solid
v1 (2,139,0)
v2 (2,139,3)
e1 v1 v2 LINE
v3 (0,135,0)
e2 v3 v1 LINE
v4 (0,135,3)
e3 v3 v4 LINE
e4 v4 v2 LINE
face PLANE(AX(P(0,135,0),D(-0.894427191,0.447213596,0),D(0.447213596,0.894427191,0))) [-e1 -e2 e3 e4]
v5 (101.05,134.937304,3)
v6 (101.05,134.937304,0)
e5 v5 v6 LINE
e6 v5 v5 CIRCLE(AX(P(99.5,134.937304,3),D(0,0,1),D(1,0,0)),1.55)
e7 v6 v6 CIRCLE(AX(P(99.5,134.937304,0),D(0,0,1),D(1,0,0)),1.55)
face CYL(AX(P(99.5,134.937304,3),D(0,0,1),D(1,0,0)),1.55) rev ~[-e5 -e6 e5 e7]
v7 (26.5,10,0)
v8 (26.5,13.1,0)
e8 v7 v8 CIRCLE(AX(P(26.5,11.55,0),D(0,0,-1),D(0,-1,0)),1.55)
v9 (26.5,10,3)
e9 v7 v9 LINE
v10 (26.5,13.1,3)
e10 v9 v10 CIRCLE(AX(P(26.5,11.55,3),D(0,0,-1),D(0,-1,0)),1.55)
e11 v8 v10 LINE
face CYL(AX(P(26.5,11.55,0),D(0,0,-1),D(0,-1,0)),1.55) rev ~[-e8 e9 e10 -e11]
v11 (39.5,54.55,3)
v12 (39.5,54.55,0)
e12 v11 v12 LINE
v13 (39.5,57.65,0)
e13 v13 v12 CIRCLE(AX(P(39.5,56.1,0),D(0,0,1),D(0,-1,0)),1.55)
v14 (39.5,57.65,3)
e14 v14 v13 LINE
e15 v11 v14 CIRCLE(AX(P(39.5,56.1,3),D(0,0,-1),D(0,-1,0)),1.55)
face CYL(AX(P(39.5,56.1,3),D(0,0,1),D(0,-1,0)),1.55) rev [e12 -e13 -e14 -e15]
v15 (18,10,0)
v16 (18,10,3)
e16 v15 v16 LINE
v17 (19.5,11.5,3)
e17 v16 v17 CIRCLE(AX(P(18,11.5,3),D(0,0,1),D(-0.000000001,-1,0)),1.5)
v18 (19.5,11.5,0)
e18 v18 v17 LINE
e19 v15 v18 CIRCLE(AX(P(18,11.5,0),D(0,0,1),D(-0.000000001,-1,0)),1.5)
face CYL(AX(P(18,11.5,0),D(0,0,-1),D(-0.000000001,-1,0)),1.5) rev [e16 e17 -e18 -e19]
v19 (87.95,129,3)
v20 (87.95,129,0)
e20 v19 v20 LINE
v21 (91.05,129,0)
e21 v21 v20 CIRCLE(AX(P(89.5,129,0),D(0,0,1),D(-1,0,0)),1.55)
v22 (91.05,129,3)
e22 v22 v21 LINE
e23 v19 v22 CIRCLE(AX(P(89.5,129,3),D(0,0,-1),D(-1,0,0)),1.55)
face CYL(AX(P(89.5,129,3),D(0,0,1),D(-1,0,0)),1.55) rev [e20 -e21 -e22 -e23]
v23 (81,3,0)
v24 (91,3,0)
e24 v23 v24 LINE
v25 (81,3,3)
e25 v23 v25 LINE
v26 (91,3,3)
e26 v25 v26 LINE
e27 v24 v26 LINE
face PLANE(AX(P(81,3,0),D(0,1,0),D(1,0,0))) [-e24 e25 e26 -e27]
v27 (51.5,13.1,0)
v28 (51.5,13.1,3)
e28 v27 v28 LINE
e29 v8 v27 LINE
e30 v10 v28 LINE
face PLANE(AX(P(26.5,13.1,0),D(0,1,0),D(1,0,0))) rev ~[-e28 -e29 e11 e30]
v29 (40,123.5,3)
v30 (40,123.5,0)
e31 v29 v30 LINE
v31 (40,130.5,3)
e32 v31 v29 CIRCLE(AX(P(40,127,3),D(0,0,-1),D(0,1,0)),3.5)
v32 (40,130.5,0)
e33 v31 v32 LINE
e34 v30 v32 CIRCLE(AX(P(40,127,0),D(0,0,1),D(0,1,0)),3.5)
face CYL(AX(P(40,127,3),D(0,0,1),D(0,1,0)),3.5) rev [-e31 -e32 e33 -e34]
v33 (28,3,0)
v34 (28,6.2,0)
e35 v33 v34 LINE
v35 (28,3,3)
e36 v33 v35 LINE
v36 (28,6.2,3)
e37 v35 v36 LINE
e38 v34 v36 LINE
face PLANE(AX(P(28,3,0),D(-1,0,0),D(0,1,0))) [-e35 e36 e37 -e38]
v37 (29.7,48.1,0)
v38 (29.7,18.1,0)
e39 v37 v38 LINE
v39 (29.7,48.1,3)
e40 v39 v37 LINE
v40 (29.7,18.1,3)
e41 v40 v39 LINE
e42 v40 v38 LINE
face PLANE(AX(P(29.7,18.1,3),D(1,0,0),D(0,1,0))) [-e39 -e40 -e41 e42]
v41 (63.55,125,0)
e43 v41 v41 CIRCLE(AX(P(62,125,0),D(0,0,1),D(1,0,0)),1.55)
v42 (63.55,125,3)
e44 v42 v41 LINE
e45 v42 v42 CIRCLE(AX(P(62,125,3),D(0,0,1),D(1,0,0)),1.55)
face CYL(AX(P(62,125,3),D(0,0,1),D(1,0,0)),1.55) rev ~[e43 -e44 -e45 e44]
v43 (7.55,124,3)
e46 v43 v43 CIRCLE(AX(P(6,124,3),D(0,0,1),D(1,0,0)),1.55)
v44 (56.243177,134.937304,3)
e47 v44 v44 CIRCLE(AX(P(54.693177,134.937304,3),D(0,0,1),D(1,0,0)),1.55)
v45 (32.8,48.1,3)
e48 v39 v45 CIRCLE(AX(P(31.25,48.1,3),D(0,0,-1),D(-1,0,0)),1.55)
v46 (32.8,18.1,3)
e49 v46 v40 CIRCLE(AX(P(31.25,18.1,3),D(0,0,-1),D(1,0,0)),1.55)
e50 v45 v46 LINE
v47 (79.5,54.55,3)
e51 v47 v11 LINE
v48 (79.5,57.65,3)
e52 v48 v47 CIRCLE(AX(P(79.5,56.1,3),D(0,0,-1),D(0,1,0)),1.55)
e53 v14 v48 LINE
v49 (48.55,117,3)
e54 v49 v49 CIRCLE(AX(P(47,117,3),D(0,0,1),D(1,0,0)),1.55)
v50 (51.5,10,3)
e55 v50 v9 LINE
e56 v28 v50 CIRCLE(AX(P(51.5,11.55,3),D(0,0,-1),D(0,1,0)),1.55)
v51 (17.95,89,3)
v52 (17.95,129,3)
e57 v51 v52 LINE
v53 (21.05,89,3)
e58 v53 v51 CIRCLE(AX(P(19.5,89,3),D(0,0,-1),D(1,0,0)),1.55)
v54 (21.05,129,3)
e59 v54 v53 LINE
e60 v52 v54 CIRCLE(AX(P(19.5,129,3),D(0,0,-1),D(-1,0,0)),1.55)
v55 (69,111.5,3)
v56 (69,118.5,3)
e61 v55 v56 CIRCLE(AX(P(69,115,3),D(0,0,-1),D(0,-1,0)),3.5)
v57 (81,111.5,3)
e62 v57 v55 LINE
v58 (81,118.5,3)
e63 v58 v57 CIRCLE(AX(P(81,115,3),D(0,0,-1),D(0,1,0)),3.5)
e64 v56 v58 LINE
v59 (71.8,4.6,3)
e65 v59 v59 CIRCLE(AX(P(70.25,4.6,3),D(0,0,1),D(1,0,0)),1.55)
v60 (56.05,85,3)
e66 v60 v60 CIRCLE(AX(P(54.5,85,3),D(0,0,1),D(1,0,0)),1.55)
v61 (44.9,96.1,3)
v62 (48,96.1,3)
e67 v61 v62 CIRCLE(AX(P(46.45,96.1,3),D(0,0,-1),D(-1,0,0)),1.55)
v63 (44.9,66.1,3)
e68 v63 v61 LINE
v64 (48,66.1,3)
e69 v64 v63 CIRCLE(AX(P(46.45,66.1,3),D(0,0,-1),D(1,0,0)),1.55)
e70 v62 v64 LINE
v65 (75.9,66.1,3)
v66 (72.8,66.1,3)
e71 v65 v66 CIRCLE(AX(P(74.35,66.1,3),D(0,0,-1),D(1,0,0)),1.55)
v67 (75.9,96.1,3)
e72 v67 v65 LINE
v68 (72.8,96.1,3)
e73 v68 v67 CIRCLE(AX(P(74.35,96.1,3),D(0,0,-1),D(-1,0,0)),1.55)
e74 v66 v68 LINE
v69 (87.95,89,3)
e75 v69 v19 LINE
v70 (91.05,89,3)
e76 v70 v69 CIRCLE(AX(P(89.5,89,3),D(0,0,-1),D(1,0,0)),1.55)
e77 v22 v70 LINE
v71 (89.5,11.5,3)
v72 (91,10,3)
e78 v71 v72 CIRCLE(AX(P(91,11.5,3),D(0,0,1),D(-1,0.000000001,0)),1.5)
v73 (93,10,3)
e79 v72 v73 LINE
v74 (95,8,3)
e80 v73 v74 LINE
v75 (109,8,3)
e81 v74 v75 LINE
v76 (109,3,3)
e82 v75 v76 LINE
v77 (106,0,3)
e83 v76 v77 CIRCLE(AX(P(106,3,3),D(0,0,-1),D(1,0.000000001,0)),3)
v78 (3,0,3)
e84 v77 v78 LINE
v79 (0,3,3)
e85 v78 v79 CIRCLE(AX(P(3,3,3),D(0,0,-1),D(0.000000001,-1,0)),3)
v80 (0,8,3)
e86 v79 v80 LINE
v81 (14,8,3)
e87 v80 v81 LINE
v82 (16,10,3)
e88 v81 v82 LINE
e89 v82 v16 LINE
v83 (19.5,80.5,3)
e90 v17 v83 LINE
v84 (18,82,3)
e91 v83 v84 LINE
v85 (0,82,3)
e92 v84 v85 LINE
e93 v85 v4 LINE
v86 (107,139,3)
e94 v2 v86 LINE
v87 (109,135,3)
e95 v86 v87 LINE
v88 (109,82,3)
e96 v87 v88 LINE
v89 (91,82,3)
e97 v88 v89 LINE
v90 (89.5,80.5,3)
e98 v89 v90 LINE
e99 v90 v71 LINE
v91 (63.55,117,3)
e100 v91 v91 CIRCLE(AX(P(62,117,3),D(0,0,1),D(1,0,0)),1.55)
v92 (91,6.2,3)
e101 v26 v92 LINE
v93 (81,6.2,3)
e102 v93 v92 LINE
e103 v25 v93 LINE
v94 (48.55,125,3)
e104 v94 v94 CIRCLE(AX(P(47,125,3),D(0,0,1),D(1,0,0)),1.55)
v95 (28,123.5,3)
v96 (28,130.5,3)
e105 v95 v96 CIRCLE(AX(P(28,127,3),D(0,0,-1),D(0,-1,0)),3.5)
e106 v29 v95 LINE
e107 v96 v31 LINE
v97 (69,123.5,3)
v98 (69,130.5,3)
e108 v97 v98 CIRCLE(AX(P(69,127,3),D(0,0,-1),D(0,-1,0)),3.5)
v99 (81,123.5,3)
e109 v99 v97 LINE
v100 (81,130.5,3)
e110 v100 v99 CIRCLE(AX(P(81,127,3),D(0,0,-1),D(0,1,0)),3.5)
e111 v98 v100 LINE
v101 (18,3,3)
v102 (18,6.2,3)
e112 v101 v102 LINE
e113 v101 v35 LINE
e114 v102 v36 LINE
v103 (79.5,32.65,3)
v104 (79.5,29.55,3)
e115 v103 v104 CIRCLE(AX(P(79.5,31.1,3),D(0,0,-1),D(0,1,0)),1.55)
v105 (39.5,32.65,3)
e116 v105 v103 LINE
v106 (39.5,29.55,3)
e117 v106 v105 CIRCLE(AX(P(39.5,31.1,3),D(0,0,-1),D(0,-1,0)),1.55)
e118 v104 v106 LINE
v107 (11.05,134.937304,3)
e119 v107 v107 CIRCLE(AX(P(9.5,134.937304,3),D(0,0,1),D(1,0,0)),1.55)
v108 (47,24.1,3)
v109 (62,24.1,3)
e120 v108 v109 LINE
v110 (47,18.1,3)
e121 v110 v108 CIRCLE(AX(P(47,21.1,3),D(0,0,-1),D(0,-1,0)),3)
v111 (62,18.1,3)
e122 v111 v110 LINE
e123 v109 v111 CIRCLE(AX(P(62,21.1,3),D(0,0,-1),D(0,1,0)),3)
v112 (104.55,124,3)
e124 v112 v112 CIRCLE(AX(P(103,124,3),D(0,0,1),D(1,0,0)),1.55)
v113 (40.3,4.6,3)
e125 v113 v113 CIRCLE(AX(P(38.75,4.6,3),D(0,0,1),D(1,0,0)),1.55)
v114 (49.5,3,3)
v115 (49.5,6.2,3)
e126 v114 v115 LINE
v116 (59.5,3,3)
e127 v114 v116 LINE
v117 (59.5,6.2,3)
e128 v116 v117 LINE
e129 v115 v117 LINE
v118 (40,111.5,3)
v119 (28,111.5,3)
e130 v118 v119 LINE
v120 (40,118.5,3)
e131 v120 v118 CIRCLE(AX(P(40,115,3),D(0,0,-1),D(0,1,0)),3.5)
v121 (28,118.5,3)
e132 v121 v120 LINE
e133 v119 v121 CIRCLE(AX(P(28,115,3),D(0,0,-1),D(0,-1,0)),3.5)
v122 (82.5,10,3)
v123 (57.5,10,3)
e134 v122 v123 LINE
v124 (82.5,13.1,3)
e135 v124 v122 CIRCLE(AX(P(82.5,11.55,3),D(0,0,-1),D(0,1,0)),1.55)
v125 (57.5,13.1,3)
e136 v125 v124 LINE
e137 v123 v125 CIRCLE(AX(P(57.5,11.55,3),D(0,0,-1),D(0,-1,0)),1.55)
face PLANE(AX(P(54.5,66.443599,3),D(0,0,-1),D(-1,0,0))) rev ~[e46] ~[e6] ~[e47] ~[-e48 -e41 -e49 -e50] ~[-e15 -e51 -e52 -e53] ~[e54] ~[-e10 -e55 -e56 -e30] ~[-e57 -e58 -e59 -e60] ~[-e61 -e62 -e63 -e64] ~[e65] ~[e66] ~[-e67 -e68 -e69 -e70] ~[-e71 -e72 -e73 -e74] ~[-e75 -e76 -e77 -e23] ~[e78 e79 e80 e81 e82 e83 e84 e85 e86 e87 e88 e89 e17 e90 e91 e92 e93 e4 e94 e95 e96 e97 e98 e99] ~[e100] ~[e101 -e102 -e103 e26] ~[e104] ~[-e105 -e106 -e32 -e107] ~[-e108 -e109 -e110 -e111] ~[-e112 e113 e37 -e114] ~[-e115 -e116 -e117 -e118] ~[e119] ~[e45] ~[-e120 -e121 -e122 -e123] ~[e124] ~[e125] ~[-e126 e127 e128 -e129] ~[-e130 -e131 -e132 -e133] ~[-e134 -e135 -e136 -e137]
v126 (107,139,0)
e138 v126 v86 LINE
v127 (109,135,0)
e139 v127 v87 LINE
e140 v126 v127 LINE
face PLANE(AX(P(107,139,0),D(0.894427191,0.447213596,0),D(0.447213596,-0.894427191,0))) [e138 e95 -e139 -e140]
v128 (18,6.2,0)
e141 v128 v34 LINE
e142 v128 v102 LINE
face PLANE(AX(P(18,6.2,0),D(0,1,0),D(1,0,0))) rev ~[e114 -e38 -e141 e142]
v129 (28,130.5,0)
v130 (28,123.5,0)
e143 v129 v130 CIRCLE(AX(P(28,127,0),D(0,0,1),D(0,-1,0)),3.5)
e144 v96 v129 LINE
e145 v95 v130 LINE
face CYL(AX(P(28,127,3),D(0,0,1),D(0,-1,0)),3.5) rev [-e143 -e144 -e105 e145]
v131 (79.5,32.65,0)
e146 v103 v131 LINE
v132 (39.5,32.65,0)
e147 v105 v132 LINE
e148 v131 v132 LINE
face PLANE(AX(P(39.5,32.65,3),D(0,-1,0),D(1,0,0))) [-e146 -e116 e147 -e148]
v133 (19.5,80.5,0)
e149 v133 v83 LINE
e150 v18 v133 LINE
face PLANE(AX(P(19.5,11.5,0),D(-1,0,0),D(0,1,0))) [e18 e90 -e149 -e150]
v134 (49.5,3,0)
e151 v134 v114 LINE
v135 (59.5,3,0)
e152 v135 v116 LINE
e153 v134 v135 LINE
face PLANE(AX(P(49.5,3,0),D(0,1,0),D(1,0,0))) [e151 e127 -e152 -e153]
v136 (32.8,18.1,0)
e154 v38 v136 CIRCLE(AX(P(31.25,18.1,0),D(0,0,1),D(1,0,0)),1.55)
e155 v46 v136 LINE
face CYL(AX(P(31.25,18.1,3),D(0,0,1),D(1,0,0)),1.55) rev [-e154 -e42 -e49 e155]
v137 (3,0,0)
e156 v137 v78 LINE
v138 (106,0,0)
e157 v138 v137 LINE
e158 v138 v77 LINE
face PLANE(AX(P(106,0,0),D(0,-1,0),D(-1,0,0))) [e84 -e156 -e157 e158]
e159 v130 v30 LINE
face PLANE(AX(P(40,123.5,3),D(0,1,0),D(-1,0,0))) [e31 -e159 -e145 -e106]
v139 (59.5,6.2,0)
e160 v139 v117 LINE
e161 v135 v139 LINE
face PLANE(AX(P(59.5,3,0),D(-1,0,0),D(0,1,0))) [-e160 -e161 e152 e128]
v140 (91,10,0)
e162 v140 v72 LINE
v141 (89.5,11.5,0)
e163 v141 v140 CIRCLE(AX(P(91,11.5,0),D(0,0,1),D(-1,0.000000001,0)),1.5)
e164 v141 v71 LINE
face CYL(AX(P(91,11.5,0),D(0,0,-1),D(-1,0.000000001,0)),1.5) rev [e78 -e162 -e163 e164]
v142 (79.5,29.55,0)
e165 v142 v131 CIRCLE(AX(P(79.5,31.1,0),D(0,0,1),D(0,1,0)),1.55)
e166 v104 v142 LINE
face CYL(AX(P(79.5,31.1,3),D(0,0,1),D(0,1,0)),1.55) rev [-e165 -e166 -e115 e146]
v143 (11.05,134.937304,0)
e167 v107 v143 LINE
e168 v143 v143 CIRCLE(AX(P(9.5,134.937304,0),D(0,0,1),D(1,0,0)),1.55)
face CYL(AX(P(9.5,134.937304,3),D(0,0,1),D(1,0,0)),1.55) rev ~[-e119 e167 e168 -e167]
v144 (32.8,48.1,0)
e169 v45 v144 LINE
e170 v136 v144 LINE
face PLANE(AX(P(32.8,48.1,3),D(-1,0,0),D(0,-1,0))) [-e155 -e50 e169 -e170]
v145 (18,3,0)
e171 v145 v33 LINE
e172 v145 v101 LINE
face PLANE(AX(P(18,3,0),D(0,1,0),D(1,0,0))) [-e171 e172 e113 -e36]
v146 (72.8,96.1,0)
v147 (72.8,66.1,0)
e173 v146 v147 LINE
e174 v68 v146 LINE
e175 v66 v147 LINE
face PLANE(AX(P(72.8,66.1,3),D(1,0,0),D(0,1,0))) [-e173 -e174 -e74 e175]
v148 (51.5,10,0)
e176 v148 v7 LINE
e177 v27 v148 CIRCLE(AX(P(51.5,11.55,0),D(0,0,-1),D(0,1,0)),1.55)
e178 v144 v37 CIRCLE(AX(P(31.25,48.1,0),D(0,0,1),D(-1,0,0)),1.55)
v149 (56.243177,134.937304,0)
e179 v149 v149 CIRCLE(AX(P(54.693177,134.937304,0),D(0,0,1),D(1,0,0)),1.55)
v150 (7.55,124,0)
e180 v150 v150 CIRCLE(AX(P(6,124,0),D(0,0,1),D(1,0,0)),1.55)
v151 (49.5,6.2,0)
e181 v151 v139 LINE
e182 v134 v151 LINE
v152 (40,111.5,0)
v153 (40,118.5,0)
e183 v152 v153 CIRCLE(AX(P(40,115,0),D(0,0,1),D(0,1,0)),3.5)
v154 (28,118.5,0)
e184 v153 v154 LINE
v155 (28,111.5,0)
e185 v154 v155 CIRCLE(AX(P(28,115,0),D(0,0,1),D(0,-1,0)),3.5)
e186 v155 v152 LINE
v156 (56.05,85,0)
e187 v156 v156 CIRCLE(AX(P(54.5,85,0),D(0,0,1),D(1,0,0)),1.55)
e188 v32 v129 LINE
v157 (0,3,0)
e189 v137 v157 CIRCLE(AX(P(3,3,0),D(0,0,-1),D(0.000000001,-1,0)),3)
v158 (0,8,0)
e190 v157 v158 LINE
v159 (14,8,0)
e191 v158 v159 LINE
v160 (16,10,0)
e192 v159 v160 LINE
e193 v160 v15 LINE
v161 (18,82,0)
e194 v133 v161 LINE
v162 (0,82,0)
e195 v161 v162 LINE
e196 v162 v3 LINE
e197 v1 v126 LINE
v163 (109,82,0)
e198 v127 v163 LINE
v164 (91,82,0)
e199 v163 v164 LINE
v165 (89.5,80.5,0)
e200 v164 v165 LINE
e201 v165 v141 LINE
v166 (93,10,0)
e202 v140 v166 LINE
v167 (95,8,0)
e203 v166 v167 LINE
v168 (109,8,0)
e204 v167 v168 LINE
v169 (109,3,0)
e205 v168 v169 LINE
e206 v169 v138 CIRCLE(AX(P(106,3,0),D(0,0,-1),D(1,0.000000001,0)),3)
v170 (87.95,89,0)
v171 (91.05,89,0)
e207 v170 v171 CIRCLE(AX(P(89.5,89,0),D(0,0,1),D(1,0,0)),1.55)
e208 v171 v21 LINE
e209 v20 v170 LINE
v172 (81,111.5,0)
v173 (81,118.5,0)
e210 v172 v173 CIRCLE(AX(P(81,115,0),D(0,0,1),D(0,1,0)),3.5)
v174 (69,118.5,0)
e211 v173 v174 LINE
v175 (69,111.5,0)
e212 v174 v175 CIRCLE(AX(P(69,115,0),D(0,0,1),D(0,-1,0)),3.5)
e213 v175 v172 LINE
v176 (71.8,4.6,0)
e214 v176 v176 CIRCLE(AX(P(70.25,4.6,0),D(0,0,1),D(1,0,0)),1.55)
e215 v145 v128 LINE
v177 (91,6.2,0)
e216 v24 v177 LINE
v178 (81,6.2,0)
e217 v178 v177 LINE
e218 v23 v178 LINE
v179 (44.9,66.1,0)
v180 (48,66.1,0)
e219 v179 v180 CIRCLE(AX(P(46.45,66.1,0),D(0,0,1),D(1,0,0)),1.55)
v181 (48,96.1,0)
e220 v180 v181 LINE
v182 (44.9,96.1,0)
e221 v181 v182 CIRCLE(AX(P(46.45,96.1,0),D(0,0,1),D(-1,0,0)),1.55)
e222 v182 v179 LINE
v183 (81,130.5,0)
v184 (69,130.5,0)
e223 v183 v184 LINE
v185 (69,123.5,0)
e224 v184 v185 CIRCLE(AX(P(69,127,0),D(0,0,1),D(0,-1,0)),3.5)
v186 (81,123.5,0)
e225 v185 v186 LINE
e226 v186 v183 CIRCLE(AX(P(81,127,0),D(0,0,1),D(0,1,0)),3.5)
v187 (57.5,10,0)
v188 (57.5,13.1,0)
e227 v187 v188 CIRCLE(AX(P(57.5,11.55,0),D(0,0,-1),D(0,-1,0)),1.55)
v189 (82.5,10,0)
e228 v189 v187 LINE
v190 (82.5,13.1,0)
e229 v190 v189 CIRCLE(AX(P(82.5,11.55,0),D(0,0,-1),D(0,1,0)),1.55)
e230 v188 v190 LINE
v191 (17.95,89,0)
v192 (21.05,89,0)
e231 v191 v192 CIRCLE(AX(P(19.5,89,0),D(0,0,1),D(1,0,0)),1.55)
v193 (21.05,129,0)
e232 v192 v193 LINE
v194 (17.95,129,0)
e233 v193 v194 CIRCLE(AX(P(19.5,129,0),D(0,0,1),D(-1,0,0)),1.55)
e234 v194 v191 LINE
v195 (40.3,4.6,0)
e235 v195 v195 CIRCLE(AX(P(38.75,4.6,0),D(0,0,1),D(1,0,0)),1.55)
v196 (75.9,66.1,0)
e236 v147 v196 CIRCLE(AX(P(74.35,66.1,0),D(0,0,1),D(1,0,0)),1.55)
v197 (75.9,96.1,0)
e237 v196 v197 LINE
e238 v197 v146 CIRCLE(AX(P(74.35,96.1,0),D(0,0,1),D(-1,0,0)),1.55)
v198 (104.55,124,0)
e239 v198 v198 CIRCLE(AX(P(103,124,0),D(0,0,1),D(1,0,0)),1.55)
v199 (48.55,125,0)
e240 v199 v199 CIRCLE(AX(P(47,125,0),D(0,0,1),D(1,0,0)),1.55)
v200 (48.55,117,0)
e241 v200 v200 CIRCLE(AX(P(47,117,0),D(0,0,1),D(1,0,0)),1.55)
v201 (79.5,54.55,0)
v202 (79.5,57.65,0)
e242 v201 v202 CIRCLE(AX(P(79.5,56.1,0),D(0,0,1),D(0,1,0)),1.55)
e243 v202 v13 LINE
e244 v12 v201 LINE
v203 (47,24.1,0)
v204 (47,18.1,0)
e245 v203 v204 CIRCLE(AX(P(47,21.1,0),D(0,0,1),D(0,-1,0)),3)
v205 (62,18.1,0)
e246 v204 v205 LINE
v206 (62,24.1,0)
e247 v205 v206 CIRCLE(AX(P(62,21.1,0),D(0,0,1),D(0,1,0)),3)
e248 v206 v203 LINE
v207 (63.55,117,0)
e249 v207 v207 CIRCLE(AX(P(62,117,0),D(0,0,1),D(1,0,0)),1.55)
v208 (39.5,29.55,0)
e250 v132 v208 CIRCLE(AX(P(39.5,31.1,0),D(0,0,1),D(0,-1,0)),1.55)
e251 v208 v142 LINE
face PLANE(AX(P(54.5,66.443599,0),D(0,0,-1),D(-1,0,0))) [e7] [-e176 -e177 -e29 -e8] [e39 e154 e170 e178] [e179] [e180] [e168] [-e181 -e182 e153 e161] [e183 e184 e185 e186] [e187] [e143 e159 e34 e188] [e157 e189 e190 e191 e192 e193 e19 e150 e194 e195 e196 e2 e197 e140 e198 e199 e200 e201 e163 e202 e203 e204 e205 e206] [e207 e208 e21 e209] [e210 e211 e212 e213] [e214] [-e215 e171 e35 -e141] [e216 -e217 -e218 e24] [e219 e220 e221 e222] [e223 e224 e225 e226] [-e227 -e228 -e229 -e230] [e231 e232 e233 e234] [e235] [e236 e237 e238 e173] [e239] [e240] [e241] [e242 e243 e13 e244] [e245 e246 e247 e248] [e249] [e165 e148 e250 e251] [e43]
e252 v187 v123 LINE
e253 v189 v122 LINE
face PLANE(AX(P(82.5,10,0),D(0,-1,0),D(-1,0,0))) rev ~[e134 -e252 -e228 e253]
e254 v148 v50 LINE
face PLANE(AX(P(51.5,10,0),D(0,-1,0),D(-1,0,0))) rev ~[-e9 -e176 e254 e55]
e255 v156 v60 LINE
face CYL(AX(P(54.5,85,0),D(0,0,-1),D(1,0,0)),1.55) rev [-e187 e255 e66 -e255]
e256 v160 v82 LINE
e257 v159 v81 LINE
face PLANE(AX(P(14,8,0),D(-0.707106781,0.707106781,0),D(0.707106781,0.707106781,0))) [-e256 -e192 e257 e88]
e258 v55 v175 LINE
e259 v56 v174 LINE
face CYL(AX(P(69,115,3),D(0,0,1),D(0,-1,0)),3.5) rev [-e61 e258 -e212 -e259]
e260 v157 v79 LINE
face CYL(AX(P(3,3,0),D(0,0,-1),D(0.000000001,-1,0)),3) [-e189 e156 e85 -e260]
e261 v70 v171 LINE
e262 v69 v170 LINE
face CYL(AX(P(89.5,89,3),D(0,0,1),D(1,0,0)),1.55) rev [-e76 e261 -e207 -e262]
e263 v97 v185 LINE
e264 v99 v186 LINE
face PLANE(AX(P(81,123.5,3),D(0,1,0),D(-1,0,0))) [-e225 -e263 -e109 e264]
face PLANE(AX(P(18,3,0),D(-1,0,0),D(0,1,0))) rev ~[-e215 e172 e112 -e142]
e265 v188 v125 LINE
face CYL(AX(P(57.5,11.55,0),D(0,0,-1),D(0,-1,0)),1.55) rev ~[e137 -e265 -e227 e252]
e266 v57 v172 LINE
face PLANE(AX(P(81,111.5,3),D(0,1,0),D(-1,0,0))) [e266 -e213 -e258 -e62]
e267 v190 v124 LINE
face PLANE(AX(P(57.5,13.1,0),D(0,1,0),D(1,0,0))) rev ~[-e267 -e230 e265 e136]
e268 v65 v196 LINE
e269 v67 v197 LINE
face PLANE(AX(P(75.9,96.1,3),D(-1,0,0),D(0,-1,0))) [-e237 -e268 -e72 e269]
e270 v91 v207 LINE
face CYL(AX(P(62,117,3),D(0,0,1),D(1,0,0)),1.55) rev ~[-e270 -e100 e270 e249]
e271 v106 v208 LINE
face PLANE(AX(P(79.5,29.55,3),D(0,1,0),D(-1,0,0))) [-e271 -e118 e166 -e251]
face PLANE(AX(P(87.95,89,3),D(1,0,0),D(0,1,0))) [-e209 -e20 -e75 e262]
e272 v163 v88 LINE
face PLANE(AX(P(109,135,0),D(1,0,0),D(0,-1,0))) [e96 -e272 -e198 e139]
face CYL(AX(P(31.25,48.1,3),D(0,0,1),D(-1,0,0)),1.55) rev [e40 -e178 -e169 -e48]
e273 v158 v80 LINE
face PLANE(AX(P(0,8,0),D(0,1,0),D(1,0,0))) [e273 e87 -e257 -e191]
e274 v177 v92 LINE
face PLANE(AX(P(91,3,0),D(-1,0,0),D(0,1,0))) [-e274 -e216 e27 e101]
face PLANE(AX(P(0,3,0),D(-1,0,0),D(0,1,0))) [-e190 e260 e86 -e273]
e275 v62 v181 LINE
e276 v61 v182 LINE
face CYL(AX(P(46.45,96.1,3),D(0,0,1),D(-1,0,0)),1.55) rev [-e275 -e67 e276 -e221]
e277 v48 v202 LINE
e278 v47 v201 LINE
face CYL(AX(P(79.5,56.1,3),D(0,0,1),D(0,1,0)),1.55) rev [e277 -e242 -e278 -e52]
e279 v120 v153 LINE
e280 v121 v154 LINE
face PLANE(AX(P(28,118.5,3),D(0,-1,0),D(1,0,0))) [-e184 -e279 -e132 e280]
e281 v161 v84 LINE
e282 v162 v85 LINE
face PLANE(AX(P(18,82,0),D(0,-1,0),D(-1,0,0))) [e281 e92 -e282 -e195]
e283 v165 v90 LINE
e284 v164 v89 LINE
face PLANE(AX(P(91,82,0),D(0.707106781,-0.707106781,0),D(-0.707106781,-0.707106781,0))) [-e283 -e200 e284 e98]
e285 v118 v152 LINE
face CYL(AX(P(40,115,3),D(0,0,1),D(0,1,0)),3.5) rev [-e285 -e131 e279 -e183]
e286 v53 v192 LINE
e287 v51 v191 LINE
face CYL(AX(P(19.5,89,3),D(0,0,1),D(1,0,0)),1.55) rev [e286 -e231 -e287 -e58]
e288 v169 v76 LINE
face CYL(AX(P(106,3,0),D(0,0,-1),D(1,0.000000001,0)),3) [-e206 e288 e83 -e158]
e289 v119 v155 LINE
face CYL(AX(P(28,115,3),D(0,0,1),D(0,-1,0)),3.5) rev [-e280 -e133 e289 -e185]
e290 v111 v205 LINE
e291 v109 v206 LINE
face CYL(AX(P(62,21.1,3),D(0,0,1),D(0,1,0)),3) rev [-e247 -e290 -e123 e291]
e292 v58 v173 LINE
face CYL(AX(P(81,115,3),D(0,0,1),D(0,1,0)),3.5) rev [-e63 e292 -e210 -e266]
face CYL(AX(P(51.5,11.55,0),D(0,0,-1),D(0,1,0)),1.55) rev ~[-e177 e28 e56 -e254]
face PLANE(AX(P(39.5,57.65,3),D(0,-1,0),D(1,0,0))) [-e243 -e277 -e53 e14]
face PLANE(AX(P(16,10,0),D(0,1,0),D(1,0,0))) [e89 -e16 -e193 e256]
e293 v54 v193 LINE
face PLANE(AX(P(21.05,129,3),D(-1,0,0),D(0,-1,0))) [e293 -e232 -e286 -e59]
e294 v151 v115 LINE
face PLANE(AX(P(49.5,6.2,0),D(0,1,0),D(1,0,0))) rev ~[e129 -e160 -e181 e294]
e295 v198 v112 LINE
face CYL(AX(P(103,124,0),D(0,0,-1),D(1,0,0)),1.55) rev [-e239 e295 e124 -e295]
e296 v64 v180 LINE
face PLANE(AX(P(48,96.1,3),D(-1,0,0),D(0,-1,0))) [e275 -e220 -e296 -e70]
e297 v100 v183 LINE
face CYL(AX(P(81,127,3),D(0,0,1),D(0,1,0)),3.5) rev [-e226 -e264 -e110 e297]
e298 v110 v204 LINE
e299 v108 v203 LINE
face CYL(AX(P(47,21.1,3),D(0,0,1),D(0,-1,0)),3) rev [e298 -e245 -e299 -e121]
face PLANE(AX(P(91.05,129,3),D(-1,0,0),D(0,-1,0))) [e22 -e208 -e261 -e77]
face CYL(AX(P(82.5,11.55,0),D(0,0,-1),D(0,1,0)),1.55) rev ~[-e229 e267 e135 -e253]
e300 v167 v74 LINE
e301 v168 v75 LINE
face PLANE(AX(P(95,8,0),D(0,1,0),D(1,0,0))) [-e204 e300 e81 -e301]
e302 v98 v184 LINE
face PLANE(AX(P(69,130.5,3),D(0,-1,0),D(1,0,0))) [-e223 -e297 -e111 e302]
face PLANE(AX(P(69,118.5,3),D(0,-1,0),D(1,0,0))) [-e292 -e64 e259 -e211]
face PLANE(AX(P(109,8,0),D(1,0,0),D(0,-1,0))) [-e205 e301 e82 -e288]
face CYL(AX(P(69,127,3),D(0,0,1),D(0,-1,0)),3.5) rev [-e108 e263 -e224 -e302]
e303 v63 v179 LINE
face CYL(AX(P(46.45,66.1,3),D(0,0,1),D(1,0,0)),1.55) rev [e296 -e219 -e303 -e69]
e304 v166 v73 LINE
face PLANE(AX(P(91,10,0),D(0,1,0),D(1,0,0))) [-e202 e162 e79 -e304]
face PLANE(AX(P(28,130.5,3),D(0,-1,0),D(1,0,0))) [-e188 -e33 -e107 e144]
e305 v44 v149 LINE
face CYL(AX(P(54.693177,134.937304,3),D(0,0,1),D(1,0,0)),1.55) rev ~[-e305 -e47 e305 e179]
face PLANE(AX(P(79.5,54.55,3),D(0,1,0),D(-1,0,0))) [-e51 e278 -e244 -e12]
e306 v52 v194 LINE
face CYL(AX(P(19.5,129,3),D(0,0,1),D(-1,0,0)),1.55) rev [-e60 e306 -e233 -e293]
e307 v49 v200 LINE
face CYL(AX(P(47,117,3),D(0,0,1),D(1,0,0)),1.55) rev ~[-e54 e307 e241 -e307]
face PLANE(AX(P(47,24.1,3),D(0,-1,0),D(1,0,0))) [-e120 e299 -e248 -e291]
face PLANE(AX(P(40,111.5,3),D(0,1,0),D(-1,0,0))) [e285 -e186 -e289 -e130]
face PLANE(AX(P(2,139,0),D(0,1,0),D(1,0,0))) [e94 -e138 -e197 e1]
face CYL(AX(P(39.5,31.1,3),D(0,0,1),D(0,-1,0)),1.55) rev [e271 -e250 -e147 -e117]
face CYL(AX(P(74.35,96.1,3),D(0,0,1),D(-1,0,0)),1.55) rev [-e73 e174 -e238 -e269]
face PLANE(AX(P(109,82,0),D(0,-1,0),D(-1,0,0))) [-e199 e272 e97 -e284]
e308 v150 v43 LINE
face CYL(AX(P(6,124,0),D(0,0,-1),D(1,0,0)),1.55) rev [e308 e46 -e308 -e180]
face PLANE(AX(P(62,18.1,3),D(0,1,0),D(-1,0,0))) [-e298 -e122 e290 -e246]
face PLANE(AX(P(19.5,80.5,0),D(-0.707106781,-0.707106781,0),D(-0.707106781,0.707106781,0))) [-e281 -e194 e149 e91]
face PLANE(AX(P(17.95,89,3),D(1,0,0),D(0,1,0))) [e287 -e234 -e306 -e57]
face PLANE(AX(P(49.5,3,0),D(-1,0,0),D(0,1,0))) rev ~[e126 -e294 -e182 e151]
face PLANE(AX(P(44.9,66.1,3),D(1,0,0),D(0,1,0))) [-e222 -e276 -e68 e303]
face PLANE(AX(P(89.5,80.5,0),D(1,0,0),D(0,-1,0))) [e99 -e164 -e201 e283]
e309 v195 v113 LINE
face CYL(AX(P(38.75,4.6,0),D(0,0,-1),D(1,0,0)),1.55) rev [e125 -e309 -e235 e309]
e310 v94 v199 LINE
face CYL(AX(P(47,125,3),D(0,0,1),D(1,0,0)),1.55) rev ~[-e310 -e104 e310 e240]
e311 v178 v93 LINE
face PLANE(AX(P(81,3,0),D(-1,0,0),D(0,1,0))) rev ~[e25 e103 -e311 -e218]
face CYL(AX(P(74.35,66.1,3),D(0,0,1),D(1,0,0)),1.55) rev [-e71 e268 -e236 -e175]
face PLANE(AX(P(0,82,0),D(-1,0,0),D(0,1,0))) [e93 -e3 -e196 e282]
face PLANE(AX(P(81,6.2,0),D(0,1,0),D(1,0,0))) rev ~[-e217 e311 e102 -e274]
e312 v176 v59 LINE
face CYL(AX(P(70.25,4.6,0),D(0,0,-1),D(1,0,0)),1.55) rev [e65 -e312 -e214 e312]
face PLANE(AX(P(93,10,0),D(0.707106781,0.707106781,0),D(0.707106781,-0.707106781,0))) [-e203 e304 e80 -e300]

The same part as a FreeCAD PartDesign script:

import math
import FreeCAD as App
import Part
import Sketcher
Q = App.Units.Quantity


def add_polygon(sketch, points):
    """Adds a closed chain of lines whose ends are joined by coincident constraints."""
    first, n = sketch.GeometryCount, len(points)
    for a, b in zip(points, points[1:] + points[:1]):
        sketch.addGeometry(Part.LineSegment(App.Vector(*a, 0), App.Vector(*b, 0)), False)
    for i in range(n):
        sketch.addConstraint(Sketcher.Constraint("Coincident", first + i, 2, first + (i + 1) % n, 1))

doc = App.newDocument("Part")
body = doc.addObject("PartDesign::Body", "Body")

sketch1 = body.newObject("Sketcher::SketchObject", "Sketch")
sketch1.AttachmentSupport = (doc.getObject("XY_Plane"), [""])
sketch1.MapMode = "FlatFace"
sketch1.addGeometry(Part.LineSegment(App.Vector(0, 135, 0), App.Vector(0, 82, 0)), False)
sketch1.addGeometry(Part.LineSegment(App.Vector(0, 82, 0), App.Vector(18, 82, 0)), False)
sketch1.addGeometry(Part.LineSegment(App.Vector(18, 82, 0), App.Vector(19.5, 80.5, 0)), False)
sketch1.addGeometry(Part.LineSegment(App.Vector(19.5, 80.5, 0), App.Vector(19.5, 11.5, 0)), False)
sketch1.addGeometry(Part.ArcOfCircle(Part.Circle(App.Vector(18, 11.5, 0), App.Vector(0, 0, 1), 1.5), math.radians(-90), math.radians(0)), False)
sketch1.addGeometry(Part.LineSegment(App.Vector(18, 10, 0), App.Vector(16, 10, 0)), False)
sketch1.addGeometry(Part.LineSegment(App.Vector(16, 10, 0), App.Vector(14, 8, 0)), False)
sketch1.addGeometry(Part.LineSegment(App.Vector(14, 8, 0), App.Vector(0, 8, 0)), False)
sketch1.addGeometry(Part.LineSegment(App.Vector(0, 8, 0), App.Vector(0, 3, 0)), False)
sketch1.addGeometry(Part.ArcOfCircle(Part.Circle(App.Vector(3, 3, 0), App.Vector(0, 0, 1), 3), math.radians(180), math.radians(270)), False)
sketch1.addGeometry(Part.LineSegment(App.Vector(3, 0, 0), App.Vector(106, 0, 0)), False)
sketch1.addGeometry(Part.ArcOfCircle(Part.Circle(App.Vector(106, 3, 0), App.Vector(0, 0, 1), 3), math.radians(-90), math.radians(0)), False)
sketch1.addGeometry(Part.LineSegment(App.Vector(109, 3, 0), App.Vector(109, 8, 0)), False)
sketch1.addGeometry(Part.LineSegment(App.Vector(109, 8, 0), App.Vector(95, 8, 0)), False)
sketch1.addGeometry(Part.LineSegment(App.Vector(95, 8, 0), App.Vector(93, 10, 0)), False)
sketch1.addGeometry(Part.LineSegment(App.Vector(93, 10, 0), App.Vector(91, 10, 0)), False)
sketch1.addGeometry(Part.ArcOfCircle(Part.Circle(App.Vector(91, 11.5, 0), App.Vector(0, 0, 1), 1.5), math.radians(180), math.radians(270)), False)
sketch1.addGeometry(Part.LineSegment(App.Vector(89.5, 11.5, 0), App.Vector(89.5, 80.5, 0)), False)
sketch1.addGeometry(Part.LineSegment(App.Vector(89.5, 80.5, 0), App.Vector(91, 82, 0)), False)
sketch1.addGeometry(Part.LineSegment(App.Vector(91, 82, 0), App.Vector(109, 82, 0)), False)
sketch1.addGeometry(Part.LineSegment(App.Vector(109, 82, 0), App.Vector(109, 135, 0)), False)
sketch1.addGeometry(Part.LineSegment(App.Vector(109, 135, 0), App.Vector(107, 139, 0)), False)
sketch1.addGeometry(Part.LineSegment(App.Vector(107, 139, 0), App.Vector(2, 139, 0)), False)
sketch1.addGeometry(Part.LineSegment(App.Vector(2, 139, 0), App.Vector(0, 135, 0)), False)
add_polygon(sketch1, [(81, 3), (81, 6.2), (91, 6.2), (91, 3)])
sketch1.addGeometry(Part.Circle(App.Vector(70.2, 4.6, 0), App.Vector(0, 0, 1), 1.6), False)
sketch1.addGeometry(Part.LineSegment(App.Vector(57.5, 13.1, 0), App.Vector(82.5, 13.1, 0)), False)
sketch1.addGeometry(Part.ArcOfCircle(Part.Circle(App.Vector(82.5, 11.6, 0), App.Vector(0, 0, 1), 1.6), math.radians(-90), math.radians(90)), False)
sketch1.addGeometry(Part.LineSegment(App.Vector(82.5, 10, 0), App.Vector(57.5, 10, 0)), False)
sketch1.addGeometry(Part.ArcOfCircle(Part.Circle(App.Vector(57.5, 11.6, 0), App.Vector(0, 0, 1), 1.6), math.radians(90), math.radians(270)), False)
add_polygon(sketch1, [(49.5, 3), (49.5, 6.2), (59.5, 6.2), (59.5, 3)])
sketch1.addGeometry(Part.Circle(App.Vector(38.8, 4.6, 0), App.Vector(0, 0, 1), 1.6), False)
sketch1.addGeometry(Part.LineSegment(App.Vector(26.5, 13.1, 0), App.Vector(51.5, 13.1, 0)), False)
sketch1.addGeometry(Part.ArcOfCircle(Part.Circle(App.Vector(51.5, 11.6, 0), App.Vector(0, 0, 1), 1.6), math.radians(-90), math.radians(90)), False)
sketch1.addGeometry(Part.LineSegment(App.Vector(51.5, 10, 0), App.Vector(26.5, 10, 0)), False)
sketch1.addGeometry(Part.ArcOfCircle(Part.Circle(App.Vector(26.5, 11.6, 0), App.Vector(0, 0, 1), 1.6), math.radians(90), math.radians(270)), False)
add_polygon(sketch1, [(18, 3), (18, 6.2), (28, 6.2), (28, 3)])
sketch1.addGeometry(Part.Circle(App.Vector(54.5, 85, 0), App.Vector(0, 0, 1), 1.6), False)
sketch1.addGeometry(Part.Circle(App.Vector(103, 124, 0), App.Vector(0, 0, 1), 1.6), False)
sketch1.addGeometry(Part.Circle(App.Vector(6, 124, 0), App.Vector(0, 0, 1), 1.6), False)
sketch1.addConstraint([
    Sketcher.Constraint("Coincident", 0, 2, 1, 1),
    Sketcher.Constraint("Coincident", 1, 2, 2, 1),
    Sketcher.Constraint("Coincident", 2, 2, 3, 1),
    Sketcher.Constraint("Tangent", 3, 2, 4, 2),
    Sketcher.Constraint("Tangent", 4, 1, 5, 1),
    Sketcher.Constraint("Coincident", 5, 2, 6, 1),
    Sketcher.Constraint("Coincident", 6, 2, 7, 1),
    Sketcher.Constraint("Coincident", 7, 2, 8, 1),
    Sketcher.Constraint("Tangent", 8, 2, 9, 1),
    Sketcher.Constraint("Tangent", 9, 2, 10, 1),
    Sketcher.Constraint("Tangent", 10, 2, 11, 1),
    Sketcher.Constraint("Tangent", 11, 2, 12, 1),
    Sketcher.Constraint("Coincident", 12, 2, 13, 1),
    Sketcher.Constraint("Coincident", 13, 2, 14, 1),
    Sketcher.Constraint("Coincident", 14, 2, 15, 1),
    Sketcher.Constraint("Tangent", 15, 2, 16, 2),
    Sketcher.Constraint("Tangent", 16, 1, 17, 1),
    Sketcher.Constraint("Coincident", 17, 2, 18, 1),
    Sketcher.Constraint("Coincident", 18, 2, 19, 1),
    Sketcher.Constraint("Coincident", 19, 2, 20, 1),
    Sketcher.Constraint("Coincident", 20, 2, 21, 1),
    Sketcher.Constraint("Coincident", 21, 2, 22, 1),
    Sketcher.Constraint("Coincident", 22, 2, 23, 1),
    Sketcher.Constraint("Coincident", 23, 2, 0, 1),
    Sketcher.Constraint("Tangent", 29, 2, 30, 2),
    Sketcher.Constraint("Tangent", 30, 1, 31, 1),
    Sketcher.Constraint("Tangent", 31, 2, 32, 2),
    Sketcher.Constraint("Tangent", 32, 1, 29, 1),
    Sketcher.Constraint("Tangent", 38, 2, 39, 2),
    Sketcher.Constraint("Tangent", 39, 1, 40, 1),
    Sketcher.Constraint("Tangent", 40, 2, 41, 2),
    Sketcher.Constraint("Tangent", 41, 1, 38, 1),
    Sketcher.Constraint("Vertical", 0),
    Sketcher.Constraint("Horizontal", 1),
    Sketcher.Constraint("Vertical", 3),
    Sketcher.Constraint("Horizontal", 5),
    Sketcher.Constraint("Horizontal", 7),
    Sketcher.Constraint("Vertical", 8),
    Sketcher.Constraint("Horizontal", 10),
    Sketcher.Constraint("Vertical", 12),
    Sketcher.Constraint("Horizontal", 13),
    Sketcher.Constraint("Horizontal", 15),
    Sketcher.Constraint("Vertical", 17),
    Sketcher.Constraint("Horizontal", 19),
    Sketcher.Constraint("Vertical", 20),
    Sketcher.Constraint("Horizontal", 22),
    Sketcher.Constraint("Vertical", 24),
    Sketcher.Constraint("Horizontal", 25),
    Sketcher.Constraint("Vertical", 26),
    Sketcher.Constraint("Horizontal", 27),
    Sketcher.Constraint("Horizontal", 29),
    Sketcher.Constraint("Horizontal", 31),
    Sketcher.Constraint("Vertical", 33),
    Sketcher.Constraint("Horizontal", 34),
    Sketcher.Constraint("Vertical", 35),
    Sketcher.Constraint("Horizontal", 36),
    Sketcher.Constraint("Horizontal", 38),
    Sketcher.Constraint("Horizontal", 40),
    Sketcher.Constraint("Vertical", 42),
    Sketcher.Constraint("Horizontal", 43),
    Sketcher.Constraint("Vertical", 44),
    Sketcher.Constraint("Horizontal", 45),
    Sketcher.Constraint("Equal", 9, 11),
    Sketcher.Constraint("Equal", 4, 16),
    Sketcher.Constraint("Equal", 28, 30),
    Sketcher.Constraint("Equal", 32, 37),
    Sketcher.Constraint("Equal", 37, 39),
    Sketcher.Constraint("Equal", 41, 46),
    Sketcher.Constraint("Equal", 46, 47),
    Sketcher.Constraint("Equal", 47, 48),
    Sketcher.Constraint("PointOnObject", 0, 2, -2),
    Sketcher.Constraint("PointOnObject", 7, 2, -2),
    Sketcher.Constraint("PointOnObject", 9, 2, -1),
    Sketcher.Constraint("Perpendicular", 2, 6),
    Sketcher.Constraint("Perpendicular", 6, 14),
    Sketcher.Constraint("Perpendicular", 14, 18),
    Sketcher.Constraint("Horizontal", 4, 3, 16, 3),
    Sketcher.Constraint("Horizontal", 28, 3, 37, 3),
    Sketcher.Constraint("Horizontal", 32, 3, 39, 3),
    Sketcher.Constraint("Horizontal", 47, 3, 48, 3),
    Sketcher.Constraint("Horizontal", 7, 2, 12, 2),
    Sketcher.Constraint("Horizontal", 2, 2, 17, 2),
    Sketcher.Constraint("Horizontal", 1, 2, 18, 2),
    Sketcher.Constraint("Horizontal", 20, 2, 23, 2),
    Sketcher.Constraint("Horizontal", 11, 2, 26, 2),
    Sketcher.Constraint("Horizontal", 15, 2, 30, 1),
    Sketcher.Constraint("Horizontal", 25, 2, 33, 2),
    Sketcher.Constraint("Horizontal", 27, 2, 35, 2),
    Sketcher.Constraint("Horizontal", 34, 2, 42, 2),
    Sketcher.Constraint("Horizontal", 36, 2, 44, 2),
    Sketcher.Constraint("Vertical", 4, 3, 1, 2),
    Sketcher.Constraint("Vertical", 15, 2, 18, 2),
    Sketcher.Constraint("Vertical", 12, 2, 19, 2),
    Sketcher.Constraint("Vertical", 18, 2, 25, 2),
    Sketcher.Constraint("Vertical", 4, 1, 42, 2),
    Sketcher.Constraint("Equal", 7, 13),
    Sketcher.Constraint("Equal", 5, 15),
    Sketcher.Constraint("Equal", 27, 34),
    Sketcher.Constraint("Equal", 31, 38),
    Sketcher.Constraint("Equal", 36, 43),
    Sketcher.Constraint("Equal", 21, 23),
    Sketcher.Constraint("Radius", 9, Q("3 mm")),
    Sketcher.Constraint("Diameter", 28, Q("3.1 mm")),
    Sketcher.Constraint("Radius", 4, Q("1.5 mm")),
    Sketcher.Constraint("DistanceX", 1, 1, 1, 2, Q("18 mm")),
    Sketcher.Constraint("DistanceX", 5, 2, 5, 1, Q("2 mm")),
    Sketcher.Constraint("DistanceX", 7, 2, 7, 1, Q("14 mm")),
    Sketcher.Constraint("DistanceX", 10, 1, 10, 2, Q("103 mm")),
    Sketcher.Constraint("DistanceX", 22, 2, 22, 1, Q("105 mm")),
    Sketcher.Constraint("DistanceX", 25, 1, 25, 2, Q("10 mm")),
    Sketcher.Constraint("DistanceX", 29, 1, 29, 2, Q("25 mm")),
    Sketcher.Constraint("DistanceY", 0, 2, 0, 1, Q("53 mm")),
    Sketcher.Constraint("DistanceY", 3, 2, 3, 1, Q("69 mm")),
    Sketcher.Constraint("DistanceY", 8, 2, 8, 1, Q("5 mm")),
    Sketcher.Constraint("DistanceY", 24, 1, 24, 2, Q("3.2 mm")),
    Sketcher.Constraint("DistanceY", -1, 1, 46, 3, Q("85 mm")),
    Sketcher.Constraint("DistanceX", -1, 1, 47, 3, Q("103 mm")),
    Sketcher.Constraint("DistanceY", -1, 1, 47, 3, Q("124 mm")),
    Sketcher.Constraint("DistanceX", -1, 1, 48, 3, Q("6 mm")),
    Sketcher.Constraint("DistanceY", -1, 1, 21, 2, Q("139 mm")),
    Sketcher.Constraint("DistanceX", 39, 3, 32, 3, Q("6 mm")),
    Sketcher.Constraint("DistanceX", 46, 3, 32, 3, Q("3 mm")),
    Sketcher.Constraint("DistanceX", 2, 2, 46, 3, Q("35 mm")),
    Sketcher.Constraint("DistanceX", 33, 2, 39, 3, Q("2 mm")),
    Sketcher.Constraint("DistanceY", -1, 1, 28, 3, Q("4.6 mm")),
    Sketcher.Constraint("DistanceX", 37, 3, 28, 3, Q("31.5 mm")),
    Sketcher.Constraint("DistanceX", -1, 1, 28, 3, Q("70.25 mm")),
])
pad1 = body.newObject("PartDesign::Pad", "Pad")
pad1.Profile = sketch1
pad1.Length = 3

sketch2 = body.newObject("Sketcher::SketchObject", "Sketch001")
sketch2.AttachmentSupport = (doc.getObject("XY_Plane"), [""])
sketch2.MapMode = "FlatFace"
sketch2.AttachmentOffset = App.Placement(App.Vector(0, 0, 3), App.Rotation())
sketch2.addGeometry([
    Part.Circle(App.Vector(47, 117, 0), App.Vector(0, 0, 1), 1.6),
    Part.Circle(App.Vector(47, 125, 0), App.Vector(0, 0, 1), 1.6),
    Part.Circle(App.Vector(62, 117, 0), App.Vector(0, 0, 1), 1.6),
    Part.Circle(App.Vector(62, 125, 0), App.Vector(0, 0, 1), 1.6),
    Part.LineSegment(App.Vector(62, 24.1, 0), App.Vector(47, 24.1, 0)),
    Part.ArcOfCircle(Part.Circle(App.Vector(47, 21.1, 0), App.Vector(0, 0, 1), 3), math.radians(90), math.radians(270)),
    Part.LineSegment(App.Vector(47, 18.1, 0), App.Vector(62, 18.1, 0)),
    Part.ArcOfCircle(Part.Circle(App.Vector(62, 21.1, 0), App.Vector(0, 0, 1), 3), math.radians(-90), math.radians(90)),
    Part.LineSegment(App.Vector(21.1, 89, 0), App.Vector(21.1, 129, 0)),
    Part.ArcOfCircle(Part.Circle(App.Vector(19.5, 129, 0), App.Vector(0, 0, 1), 1.6), math.radians(0), math.radians(180)),
    Part.LineSegment(App.Vector(17.9, 129, 0), App.Vector(17.9, 89, 0)),
    Part.ArcOfCircle(Part.Circle(App.Vector(19.5, 89, 0), App.Vector(0, 0, 1), 1.6), math.radians(180), math.radians(360)),
    Part.LineSegment(App.Vector(29.7, 48.1, 0), App.Vector(29.7, 18.1, 0)),
    Part.ArcOfCircle(Part.Circle(App.Vector(31.2, 18.1, 0), App.Vector(0, 0, 1), 1.6), math.radians(180), math.radians(360)),
    Part.LineSegment(App.Vector(32.8, 18.1, 0), App.Vector(32.8, 48.1, 0)),
    Part.ArcOfCircle(Part.Circle(App.Vector(31.2, 48.1, 0), App.Vector(0, 0, 1), 1.6), math.radians(0), math.radians(180)),
    Part.LineSegment(App.Vector(75.9, 66.1, 0), App.Vector(75.9, 96.1, 0)),
    Part.ArcOfCircle(Part.Circle(App.Vector(74.3, 96.1, 0), App.Vector(0, 0, 1), 1.6), math.radians(0), math.radians(180)),
    Part.LineSegment(App.Vector(72.8, 96.1, 0), App.Vector(72.8, 66.1, 0)),
    Part.ArcOfCircle(Part.Circle(App.Vector(74.3, 66.1, 0), App.Vector(0, 0, 1), 1.6), math.radians(180), math.radians(360)),
    Part.LineSegment(App.Vector(48, 66.1, 0), App.Vector(48, 96.1, 0)),
    Part.ArcOfCircle(Part.Circle(App.Vector(46.5, 96.1, 0), App.Vector(0, 0, 1), 1.6), math.radians(0), math.radians(180)),
    Part.LineSegment(App.Vector(44.9, 96.1, 0), App.Vector(44.9, 66.1, 0)),
    Part.ArcOfCircle(Part.Circle(App.Vector(46.5, 66.1, 0), App.Vector(0, 0, 1), 1.6), math.radians(180), math.radians(360)),
    Part.LineSegment(App.Vector(40, 118.5, 0), App.Vector(28, 118.5, 0)),
    Part.ArcOfCircle(Part.Circle(App.Vector(28, 115, 0), App.Vector(0, 0, 1), 3.5), math.radians(90), math.radians(270)),
    Part.LineSegment(App.Vector(28, 111.5, 0), App.Vector(40, 111.5, 0)),
    Part.ArcOfCircle(Part.Circle(App.Vector(40, 115, 0), App.Vector(0, 0, 1), 3.5), math.radians(-90), math.radians(90)),
    Part.LineSegment(App.Vector(40, 130.5, 0), App.Vector(28, 130.5, 0)),
    Part.ArcOfCircle(Part.Circle(App.Vector(28, 127, 0), App.Vector(0, 0, 1), 3.5), math.radians(90), math.radians(270)),
    Part.LineSegment(App.Vector(28, 123.5, 0), App.Vector(40, 123.5, 0)),
    Part.ArcOfCircle(Part.Circle(App.Vector(40, 127, 0), App.Vector(0, 0, 1), 3.5), math.radians(-90), math.radians(90)),
    Part.LineSegment(App.Vector(91, 89, 0), App.Vector(91, 129, 0)),
    Part.ArcOfCircle(Part.Circle(App.Vector(89.5, 129, 0), App.Vector(0, 0, 1), 1.6), math.radians(0), math.radians(180)),
    Part.LineSegment(App.Vector(88, 129, 0), App.Vector(88, 89, 0)),
    Part.ArcOfCircle(Part.Circle(App.Vector(89.5, 89, 0), App.Vector(0, 0, 1), 1.6), math.radians(180), math.radians(360)),
    Part.LineSegment(App.Vector(81, 118.5, 0), App.Vector(69, 118.5, 0)),
    Part.ArcOfCircle(Part.Circle(App.Vector(69, 115, 0), App.Vector(0, 0, 1), 3.5), math.radians(90), math.radians(270)),
    Part.LineSegment(App.Vector(69, 111.5, 0), App.Vector(81, 111.5, 0)),
    Part.ArcOfCircle(Part.Circle(App.Vector(81, 115, 0), App.Vector(0, 0, 1), 3.5), math.radians(-90), math.radians(90)),
    Part.LineSegment(App.Vector(81, 130.5, 0), App.Vector(69, 130.5, 0)),
    Part.ArcOfCircle(Part.Circle(App.Vector(69, 127, 0), App.Vector(0, 0, 1), 3.5), math.radians(90), math.radians(270)),
    Part.LineSegment(App.Vector(69, 123.5, 0), App.Vector(81, 123.5, 0)),
    Part.ArcOfCircle(Part.Circle(App.Vector(81, 127, 0), App.Vector(0, 0, 1), 3.5), math.radians(-90), math.radians(90)),
    Part.LineSegment(App.Vector(79.5, 32.6, 0), App.Vector(39.5, 32.6, 0)),
    Part.ArcOfCircle(Part.Circle(App.Vector(39.5, 31.1, 0), App.Vector(0, 0, 1), 1.6), math.radians(90), math.radians(270)),
    Part.LineSegment(App.Vector(39.5, 29.6, 0), App.Vector(79.5, 29.6, 0)),
    Part.ArcOfCircle(Part.Circle(App.Vector(79.5, 31.1, 0), App.Vector(0, 0, 1), 1.6), math.radians(-90), math.radians(90)),
    Part.LineSegment(App.Vector(79.5, 57.6, 0), App.Vector(39.5, 57.6, 0)),
    Part.ArcOfCircle(Part.Circle(App.Vector(39.5, 56.1, 0), App.Vector(0, 0, 1), 1.6), math.radians(90), math.radians(270)),
    Part.LineSegment(App.Vector(39.5, 54.5, 0), App.Vector(79.5, 54.5, 0)),
    Part.ArcOfCircle(Part.Circle(App.Vector(79.5, 56.1, 0), App.Vector(0, 0, 1), 1.6), math.radians(-90), math.radians(90)),
], False)
sketch2.addConstraint([
    Sketcher.Constraint("Tangent", 4, 2, 5, 1),
    Sketcher.Constraint("Tangent", 5, 2, 6, 1),
    Sketcher.Constraint("Tangent", 6, 2, 7, 1),
    Sketcher.Constraint("Tangent", 7, 2, 4, 1),
    Sketcher.Constraint("Tangent", 8, 2, 9, 1),
    Sketcher.Constraint("Tangent", 9, 2, 10, 1),
    Sketcher.Constraint("Tangent", 10, 2, 11, 1),
    Sketcher.Constraint("Tangent", 11, 2, 8, 1),
    Sketcher.Constraint("Tangent", 12, 2, 13, 1),
    Sketcher.Constraint("Tangent", 13, 2, 14, 1),
    Sketcher.Constraint("Tangent", 14, 2, 15, 1),
    Sketcher.Constraint("Tangent", 15, 2, 12, 1),
    Sketcher.Constraint("Tangent", 16, 2, 17, 1),
    Sketcher.Constraint("Tangent", 17, 2, 18, 1),
    Sketcher.Constraint("Tangent", 18, 2, 19, 1),
    Sketcher.Constraint("Tangent", 19, 2, 16, 1),
    Sketcher.Constraint("Tangent", 20, 2, 21, 1),
    Sketcher.Constraint("Tangent", 21, 2, 22, 1),
    Sketcher.Constraint("Tangent", 22, 2, 23, 1),
    Sketcher.Constraint("Tangent", 23, 2, 20, 1),
    Sketcher.Constraint("Tangent", 24, 2, 25, 1),
    Sketcher.Constraint("Tangent", 25, 2, 26, 1),
    Sketcher.Constraint("Tangent", 26, 2, 27, 1),
    Sketcher.Constraint("Tangent", 27, 2, 24, 1),
    Sketcher.Constraint("Tangent", 28, 2, 29, 1),
    Sketcher.Constraint("Tangent", 29, 2, 30, 1),
    Sketcher.Constraint("Tangent", 30, 2, 31, 1),
    Sketcher.Constraint("Tangent", 31, 2, 28, 1),
    Sketcher.Constraint("Tangent", 32, 2, 33, 1),
    Sketcher.Constraint("Tangent", 33, 2, 34, 1),
    Sketcher.Constraint("Tangent", 34, 2, 35, 1),
    Sketcher.Constraint("Tangent", 35, 2, 32, 1),
    Sketcher.Constraint("Tangent", 36, 2, 37, 1),
    Sketcher.Constraint("Tangent", 37, 2, 38, 1),
    Sketcher.Constraint("Tangent", 38, 2, 39, 1),
    Sketcher.Constraint("Tangent", 39, 2, 36, 1),
    Sketcher.Constraint("Tangent", 40, 2, 41, 1),
    Sketcher.Constraint("Tangent", 41, 2, 42, 1),
    Sketcher.Constraint("Tangent", 42, 2, 43, 1),
    Sketcher.Constraint("Tangent", 43, 2, 40, 1),
    Sketcher.Constraint("Tangent", 44, 2, 45, 1),
    Sketcher.Constraint("Tangent", 45, 2, 46, 1),
    Sketcher.Constraint("Tangent", 46, 2, 47, 1),
    Sketcher.Constraint("Tangent", 47, 2, 44, 1),
    Sketcher.Constraint("Tangent", 48, 2, 49, 1),
    Sketcher.Constraint("Tangent", 49, 2, 50, 1),
    Sketcher.Constraint("Tangent", 50, 2, 51, 1),
    Sketcher.Constraint("Tangent", 51, 2, 48, 1),
    Sketcher.Constraint("Horizontal", 4),
    Sketcher.Constraint("Horizontal", 6),
    Sketcher.Constraint("Vertical", 8),
    Sketcher.Constraint("Vertical", 10),
    Sketcher.Constraint("Vertical", 12),
    Sketcher.Constraint("Vertical", 14),
    Sketcher.Constraint("Vertical", 16),
    Sketcher.Constraint("Vertical", 18),
    Sketcher.Constraint("Vertical", 20),
    Sketcher.Constraint("Vertical", 22),
    Sketcher.Constraint("Horizontal", 24),
    Sketcher.Constraint("Horizontal", 26),
    Sketcher.Constraint("Horizontal", 28),
    Sketcher.Constraint("Horizontal", 30),
    Sketcher.Constraint("Vertical", 32),
    Sketcher.Constraint("Vertical", 34),
    Sketcher.Constraint("Horizontal", 36),
    Sketcher.Constraint("Horizontal", 38),
    Sketcher.Constraint("Horizontal", 40),
    Sketcher.Constraint("Horizontal", 42),
    Sketcher.Constraint("Horizontal", 44),
    Sketcher.Constraint("Horizontal", 46),
    Sketcher.Constraint("Horizontal", 48),
    Sketcher.Constraint("Horizontal", 50),
    Sketcher.Constraint("Equal", 0, 1),
    Sketcher.Constraint("Equal", 1, 2),
    Sketcher.Constraint("Equal", 2, 3),
    Sketcher.Constraint("Equal", 3, 9),
    Sketcher.Constraint("Equal", 11, 13),
    Sketcher.Constraint("Equal", 15, 17),
    Sketcher.Constraint("Equal", 19, 21),
    Sketcher.Constraint("Equal", 27, 29),
    Sketcher.Constraint("Equal", 23, 33),
    Sketcher.Constraint("Equal", 31, 37),
    Sketcher.Constraint("Equal", 39, 41),
    Sketcher.Constraint("Equal", 35, 45),
    Sketcher.Constraint("Equal", 47, 49),
    Sketcher.Constraint("Horizontal", 0, 3, 2, 3),
    Sketcher.Constraint("Horizontal", 1, 3, 3, 3),
    Sketcher.Constraint("Horizontal", 17, 3, 21, 3),
    Sketcher.Constraint("Horizontal", 19, 3, 23, 3),
    Sketcher.Constraint("Horizontal", 9, 3, 33, 3),
    Sketcher.Constraint("Horizontal", 11, 3, 35, 3),
    Sketcher.Constraint("Horizontal", 27, 3, 37, 3),
    Sketcher.Constraint("Horizontal", 31, 3, 41, 3),
    Sketcher.Constraint("Horizontal", 13, 3, 5, 2),
    Sketcher.Constraint("Vertical", 0, 3, 1, 3),
    Sketcher.Constraint("Vertical", 2, 3, 3, 3),
    Sketcher.Constraint("Vertical", 1, 3, 5, 3),
    Sketcher.Constraint("Vertical", 3, 3, 7, 3),
    Sketcher.Constraint("Vertical", 25, 3, 29, 3),
    Sketcher.Constraint("Vertical", 27, 3, 31, 3),
    Sketcher.Constraint("Vertical", 37, 3, 41, 3),
    Sketcher.Constraint("Vertical", 39, 3, 43, 3),
    Sketcher.Constraint("Vertical", 45, 3, 49, 3),
    Sketcher.Constraint("Vertical", 47, 3, 51, 3),
    Sketcher.Constraint("Equal", 30, 36),
    Sketcher.Constraint("Equal", 50, 8),
    Sketcher.Constraint("Equal", 14, 16),
    Sketcher.Constraint("Radius", 5, Q("3 mm")),
    Sketcher.Constraint("Diameter", 0, Q("3.1 mm")),
    Sketcher.Constraint("Radius", 25, Q("3.5 mm")),
    Sketcher.Constraint("DistanceX", 4, 2, 4, 1, Q("15 mm")),
    Sketcher.Constraint("DistanceX", 24, 2, 24, 1, Q("12 mm")),
    Sketcher.Constraint("DistanceX", 44, 2, 44, 1, Q("40 mm")),
    Sketcher.Constraint("DistanceY", 12, 2, 12, 1, Q("30 mm")),
    Sketcher.Constraint("DistanceX", -1, 1, 0, 3, Q("47 mm")),
    Sketcher.Constraint("DistanceY", -1, 1, 0, 3, Q("117 mm")),
    Sketcher.Constraint("DistanceY", -1, 1, 1, 3, Q("125 mm")),
    Sketcher.Constraint("DistanceY", -1, 1, 9, 3, Q("129 mm")),
    Sketcher.Constraint("DistanceX", -1, 1, 25, 3, Q("28 mm")),
    Sketcher.Constraint("DistanceY", -1, 1, 25, 3, Q("115 mm")),
    Sketcher.Constraint("DistanceY", -1, 1, 29, 3, Q("127 mm")),
    Sketcher.Constraint("DistanceX", -1, 1, 37, 3, Q("69 mm")),
    Sketcher.Constraint("DistanceX", -1, 1, 20, 2, Q("48 mm")),
    Sketcher.Constraint("DistanceY", -1, 1, 5, 3, Q("21.1 mm")),
    Sketcher.Constraint("DistanceX", -1, 1, 9, 3, Q("19.5 mm")),
    Sketcher.Constraint("DistanceY", -1, 1, 17, 3, Q("96.1 mm")),
    Sketcher.Constraint("DistanceX", -1, 1, 33, 3, Q("89.5 mm")),
    Sketcher.Constraint("DistanceX", -1, 1, 45, 3, Q("39.5 mm")),
    Sketcher.Constraint("DistanceY", -1, 1, 45, 3, Q("31.1 mm")),
    Sketcher.Constraint("DistanceY", -1, 1, 49, 3, Q("56.1 mm")),
    Sketcher.Constraint("DistanceX", -1, 1, 12, 2, Q("29.7 mm")),
    Sketcher.Constraint("DistanceX", -1, 1, 16, 2, Q("75.9 mm")),
])
pocket1 = body.newObject("PartDesign::Pocket", "Pocket")
pocket1.Profile = sketch2
pocket1.Type = "ThroughAll"

sketch3 = body.newObject("Sketcher::SketchObject", "Sketch002")
sketch3.AttachmentSupport = (doc.getObject("XY_Plane"), [""])
sketch3.MapMode = "FlatFace"
sketch3.AttachmentOffset = App.Placement(App.Vector(0, 0, 3), App.Rotation())
sketch3.addGeometry([
    Part.Circle(App.Vector(54.7, 134.9, 0), App.Vector(0, 0, 1), 1.6),
    Part.Circle(App.Vector(9.5, 134.9, 0), App.Vector(0, 0, 1), 1.6),
    Part.Circle(App.Vector(99.5, 134.9, 0), App.Vector(0, 0, 1), 1.6),
], False)
sketch3.addConstraint([
    Sketcher.Constraint("Equal", 0, 1),
    Sketcher.Constraint("Equal", 1, 2),
    Sketcher.Constraint("Horizontal", 0, 3, 1, 3),
    Sketcher.Constraint("Horizontal", 1, 3, 2, 3),
    Sketcher.Constraint("Diameter", 0, Q("3.1 mm")),
    Sketcher.Constraint("DistanceX", 1, 3, 2, 3, Q("90 mm")),
    Sketcher.Constraint("DistanceX", -1, 1, 1, 3, Q("9.5 mm")),
    Sketcher.Constraint("DistanceX", -1, 1, 0, 3, Q("54.693177 mm")),
    Sketcher.Constraint("DistanceY", -1, 1, 0, 3, Q("134.937304 mm")),
])
pocket2 = body.newObject("PartDesign::Pocket", "Pocket001")
pocket2.Profile = sketch3
pocket2.Length = 10

doc.recompute()
